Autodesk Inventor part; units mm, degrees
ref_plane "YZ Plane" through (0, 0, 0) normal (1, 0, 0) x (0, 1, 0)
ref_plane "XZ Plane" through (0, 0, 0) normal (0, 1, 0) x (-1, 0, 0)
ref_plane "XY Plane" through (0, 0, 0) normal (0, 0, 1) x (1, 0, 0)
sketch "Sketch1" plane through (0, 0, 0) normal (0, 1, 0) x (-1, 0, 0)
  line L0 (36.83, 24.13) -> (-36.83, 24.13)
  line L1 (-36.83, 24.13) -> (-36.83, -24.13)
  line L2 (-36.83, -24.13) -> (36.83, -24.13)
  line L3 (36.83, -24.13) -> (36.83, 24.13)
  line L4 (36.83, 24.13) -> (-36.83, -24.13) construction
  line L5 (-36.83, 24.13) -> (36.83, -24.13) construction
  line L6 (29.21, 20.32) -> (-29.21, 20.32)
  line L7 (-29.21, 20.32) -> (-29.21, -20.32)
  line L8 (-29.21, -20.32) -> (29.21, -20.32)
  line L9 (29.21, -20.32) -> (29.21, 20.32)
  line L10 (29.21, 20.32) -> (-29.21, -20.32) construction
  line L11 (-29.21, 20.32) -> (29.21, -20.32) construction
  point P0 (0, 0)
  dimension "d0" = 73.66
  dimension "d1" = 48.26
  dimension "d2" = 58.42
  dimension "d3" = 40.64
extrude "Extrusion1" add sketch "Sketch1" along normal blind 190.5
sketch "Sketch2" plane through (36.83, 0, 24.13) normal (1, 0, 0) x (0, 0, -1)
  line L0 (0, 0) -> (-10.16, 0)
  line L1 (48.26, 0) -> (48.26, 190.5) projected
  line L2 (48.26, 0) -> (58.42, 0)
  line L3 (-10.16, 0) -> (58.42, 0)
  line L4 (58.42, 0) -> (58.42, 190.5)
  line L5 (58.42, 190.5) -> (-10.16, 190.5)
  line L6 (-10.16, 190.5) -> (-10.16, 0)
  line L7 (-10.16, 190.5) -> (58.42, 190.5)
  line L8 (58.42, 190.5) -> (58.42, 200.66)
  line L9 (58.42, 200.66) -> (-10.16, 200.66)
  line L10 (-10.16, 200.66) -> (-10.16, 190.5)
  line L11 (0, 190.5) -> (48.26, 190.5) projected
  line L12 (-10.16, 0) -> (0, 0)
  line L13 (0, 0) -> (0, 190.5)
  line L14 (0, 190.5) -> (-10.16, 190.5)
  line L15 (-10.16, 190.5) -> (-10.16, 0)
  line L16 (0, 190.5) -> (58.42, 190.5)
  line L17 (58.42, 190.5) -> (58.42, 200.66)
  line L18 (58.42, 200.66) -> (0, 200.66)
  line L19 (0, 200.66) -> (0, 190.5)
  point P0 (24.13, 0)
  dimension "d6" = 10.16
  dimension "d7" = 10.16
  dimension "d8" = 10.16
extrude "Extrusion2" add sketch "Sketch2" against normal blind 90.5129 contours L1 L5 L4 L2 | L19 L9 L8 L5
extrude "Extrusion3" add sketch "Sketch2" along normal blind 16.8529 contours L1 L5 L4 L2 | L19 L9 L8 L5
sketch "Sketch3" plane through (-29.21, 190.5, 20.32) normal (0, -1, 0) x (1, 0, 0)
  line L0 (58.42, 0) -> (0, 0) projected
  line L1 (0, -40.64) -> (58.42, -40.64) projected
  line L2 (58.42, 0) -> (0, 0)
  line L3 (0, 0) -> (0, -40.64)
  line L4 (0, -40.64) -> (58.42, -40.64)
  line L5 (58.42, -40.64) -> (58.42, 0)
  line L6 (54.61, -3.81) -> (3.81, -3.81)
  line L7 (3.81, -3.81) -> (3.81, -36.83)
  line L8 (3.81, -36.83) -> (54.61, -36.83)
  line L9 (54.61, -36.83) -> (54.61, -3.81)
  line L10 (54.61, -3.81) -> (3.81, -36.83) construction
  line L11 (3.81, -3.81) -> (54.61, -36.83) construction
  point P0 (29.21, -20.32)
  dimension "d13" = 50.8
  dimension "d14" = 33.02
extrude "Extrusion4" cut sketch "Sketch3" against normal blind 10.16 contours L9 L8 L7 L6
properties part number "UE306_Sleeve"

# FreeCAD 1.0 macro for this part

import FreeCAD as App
import Part
import Sketcher

V = App.Vector
Q = App.Units.Quantity

doc = App.newDocument("Part")
body = doc.addObject("PartDesign::Body", "Body")

# Sketch on XZ plane
sketch1 = doc.addObject("Sketcher::SketchObject", "Sketch")
body.addObject(sketch1)
sketch1.AttachmentSupport = (doc.XZ_Plane, [""])
sketch1.MapMode = "FlatFace"
sketch1.addGeometry([
    Part.LineSegment(V(-37, -24, 0), V(-37, 24, 0)),  # 0
    Part.LineSegment(V(-37, 24, 0), V(37, 24, 0)),  # 1
    Part.LineSegment(V(37, 24, 0), V(37, -24, 0)),  # 2
    Part.LineSegment(V(37, -24, 0), V(-37, -24, 0)),  # 3
    Part.LineSegment(V(29, 20, 0), V(-29, 20, 0)),  # 4
    Part.LineSegment(V(-29, 20, 0), V(-29, -20, 0)),  # 5
    Part.LineSegment(V(-29, -20, 0), V(29, -20, 0)),  # 6
    Part.LineSegment(V(29, -20, 0), V(29, 20, 0)),  # 7
], False)
sketch1.addConstraint([
    Sketcher.Constraint("Coincident", 0, 2, 1, 1),
    Sketcher.Constraint("Coincident", 1, 2, 2, 1),
    Sketcher.Constraint("Coincident", 2, 2, 3, 1),
    Sketcher.Constraint("Coincident", 3, 2, 0, 1),
    Sketcher.Constraint("Coincident", 4, 2, 5, 1),
    Sketcher.Constraint("Coincident", 5, 2, 6, 1),
    Sketcher.Constraint("Coincident", 6, 2, 7, 1),
    Sketcher.Constraint("Coincident", 7, 2, 4, 1),
    Sketcher.Constraint("Vertical", 0),
    Sketcher.Constraint("Horizontal", 1),
    Sketcher.Constraint("Vertical", 2),
    Sketcher.Constraint("Horizontal", 3),
    Sketcher.Constraint("Horizontal", 4),
    Sketcher.Constraint("Vertical", 5),
    Sketcher.Constraint("Horizontal", 6),
    Sketcher.Constraint("Vertical", 7),
    Sketcher.Constraint("Symmetric", 0, 2, 2, 2, -1, 1),
    Sketcher.Constraint("Symmetric", 4, 2, 6, 2, -1, 1),
    Sketcher.Constraint("DistanceX", 1, 1, 1, 2, Q("2.9 in")),
    Sketcher.Constraint("DistanceX", 4, 2, 4, 1, Q("2.3 in")),
    Sketcher.Constraint("DistanceY", 0, 1, 0, 2, Q("1.9 in")),
    Sketcher.Constraint("DistanceY", 5, 2, 5, 1, Q("1.6 in")),
])
pad1 = doc.addObject("PartDesign::Pad", "Pad")
body.addObject(pad1)
pad1.Profile = sketch1
pad1.Length = Q("7.5 in")
pad1.Reversed = True

# Sketch on YZ plane
sketch2 = doc.addObject("Sketcher::SketchObject", "Sketch001")
body.addObject(sketch2)
sketch2.AttachmentSupport = (doc.YZ_Plane, [""])
sketch2.MapMode = "FlatFace"
sketch2.AttachmentOffset = App.Placement(V(0, 0, 1.45 * 25.4), App.Rotation())
sketch2.addGeometry([
    Part.LineSegment(V(190, -24, 0), V(0, -24, 0)),  # 0
    Part.LineSegment(V(0, -24, 0), V(0, -34, 0)),  # 1
    Part.LineSegment(V(0, -34, 0), V(201, -34, 0)),  # 2
    Part.LineSegment(V(201, -34, 0), V(201, 24, 0)),  # 3
    Part.LineSegment(V(201, 24, 0), V(190, 24, 0)),  # 4
    Part.LineSegment(V(190, 24, 0), V(190, -24, 0)),  # 5
], False)
sketch2.addConstraint([
    Sketcher.Constraint("Coincident", 0, 2, 1, 1),
    Sketcher.Constraint("Coincident", 1, 2, 2, 1),
    Sketcher.Constraint("Coincident", 2, 2, 3, 1),
    Sketcher.Constraint("Coincident", 3, 2, 4, 1),
    Sketcher.Constraint("Coincident", 4, 2, 5, 1),
    Sketcher.Constraint("Coincident", 5, 2, 0, 1),
    Sketcher.Constraint("Horizontal", 0),
    Sketcher.Constraint("Vertical", 1),
    Sketcher.Constraint("Horizontal", 2),
    Sketcher.Constraint("Vertical", 3),
    Sketcher.Constraint("Horizontal", 4),
    Sketcher.Constraint("Vertical", 5),
    Sketcher.Constraint("PointOnObject", 0, 2, -2),
    Sketcher.Constraint("Equal", 4, 1),
    Sketcher.Constraint("DistanceX", 4, 2, 4, 1, Q("0.4 in")),
    Sketcher.Constraint("DistanceX", 0, 2, 0, 1, Q("7.5 in")),
    Sketcher.Constraint("DistanceY", 3, 1, 3, 2, Q("2.3 in")),
    Sketcher.Constraint("DistanceY", 0, 2, -1, 1, Q("0.95 in")),
])
pad2 = doc.addObject("PartDesign::Pad", "Pad001")
body.addObject(pad2)
pad2.Profile = sketch2
pad2.Length = Q("3.5635 in")
pad2.Reversed = True

# Sketch on YZ plane
sketch3 = doc.addObject("Sketcher::SketchObject", "Sketch002")
body.addObject(sketch3)
sketch3.AttachmentSupport = (doc.YZ_Plane, [""])
sketch3.MapMode = "FlatFace"
sketch3.AttachmentOffset = App.Placement(V(0, 0, 1.45 * 25.4), App.Rotation())
sketch3.addGeometry([
    Part.LineSegment(V(190, -24, 0), V(0, -24, 0)),  # 0
    Part.LineSegment(V(0, -24, 0), V(0, -34, 0)),  # 1
    Part.LineSegment(V(0, -34, 0), V(201, -34, 0)),  # 2
    Part.LineSegment(V(201, -34, 0), V(201, 24, 0)),  # 3
    Part.LineSegment(V(201, 24, 0), V(190, 24, 0)),  # 4
    Part.LineSegment(V(190, 24, 0), V(190, -24, 0)),  # 5
], False)
sketch3.addConstraint([
    Sketcher.Constraint("Coincident", 0, 2, 1, 1),
    Sketcher.Constraint("Coincident", 1, 2, 2, 1),
    Sketcher.Constraint("Coincident", 2, 2, 3, 1),
    Sketcher.Constraint("Coincident", 3, 2, 4, 1),
    Sketcher.Constraint("Coincident", 4, 2, 5, 1),
    Sketcher.Constraint("Coincident", 5, 2, 0, 1),
    Sketcher.Constraint("Horizontal", 0),
    Sketcher.Constraint("Vertical", 1),
    Sketcher.Constraint("Horizontal", 2),
    Sketcher.Constraint("Vertical", 3),
    Sketcher.Constraint("Horizontal", 4),
    Sketcher.Constraint("Vertical", 5),
    Sketcher.Constraint("PointOnObject", 0, 2, -2),
    Sketcher.Constraint("Equal", 4, 1),
    Sketcher.Constraint("DistanceX", 4, 2, 4, 1, Q("0.4 in")),
    Sketcher.Constraint("DistanceX", 0, 2, 0, 1, Q("7.5 in")),
    Sketcher.Constraint("DistanceY", 3, 1, 3, 2, Q("2.3 in")),
    Sketcher.Constraint("DistanceY", 0, 2, -1, 1, Q("0.95 in")),
])
pad3 = doc.addObject("PartDesign::Pad", "Pad002")
body.addObject(pad3)
pad3.Profile = sketch3
pad3.Length = Q("0.6635 in")

# Sketch on XZ plane
sketch4 = doc.addObject("Sketcher::SketchObject", "Sketch003")
body.addObject(sketch4)
sketch4.AttachmentSupport = (doc.XZ_Plane, [""])
sketch4.MapMode = "FlatFace"
sketch4.AttachmentOffset = App.Placement(V(0, 0, -7.5 * 25.4), App.Rotation())
sketch4.addGeometry([
    Part.LineSegment(V(25, -17, 0), V(25, 17, 0)),
    Part.LineSegment(V(25, 17, 0), V(-25, 17, 0)),
    Part.LineSegment(V(-25, 17, 0), V(-25, -17, 0)),
    Part.LineSegment(V(-25, -17, 0), V(25, -17, 0)),
], False)
sketch4.addConstraint([
    Sketcher.Constraint("Coincident", 0, 2, 1, 1),
    Sketcher.Constraint("Coincident", 1, 2, 2, 1),
    Sketcher.Constraint("Coincident", 2, 2, 3, 1),
    Sketcher.Constraint("Coincident", 3, 2, 0, 1),
    Sketcher.Constraint("Vertical", 0),
    Sketcher.Constraint("Horizontal", 1),
    Sketcher.Constraint("Vertical", 2),
    Sketcher.Constraint("Horizontal", 3),
    Sketcher.Constraint("Symmetric", 0, 2, 2, 2, -1, 1),
    Sketcher.Constraint("DistanceX", 1, 2, 1, 1, Q("2 in")),
    Sketcher.Constraint("DistanceY", 0, 1, 0, 2, Q("1.3 in")),
])
pocket1 = doc.addObject("PartDesign::Pocket", "Pocket")
body.addObject(pocket1)
pocket1.Profile = sketch4
pocket1.Length = Q("0.4 in")

doc.recompute()
